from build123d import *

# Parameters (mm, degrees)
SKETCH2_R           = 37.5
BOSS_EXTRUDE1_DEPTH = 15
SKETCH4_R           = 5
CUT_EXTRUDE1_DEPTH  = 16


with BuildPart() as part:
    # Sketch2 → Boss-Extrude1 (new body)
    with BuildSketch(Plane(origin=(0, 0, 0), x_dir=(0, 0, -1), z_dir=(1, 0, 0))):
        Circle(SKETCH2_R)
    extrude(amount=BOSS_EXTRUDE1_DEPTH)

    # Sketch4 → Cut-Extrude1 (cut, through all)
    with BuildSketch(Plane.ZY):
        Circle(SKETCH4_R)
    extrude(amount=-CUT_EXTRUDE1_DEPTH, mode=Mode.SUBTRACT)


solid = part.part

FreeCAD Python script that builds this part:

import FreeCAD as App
import Part
import Sketcher

V = App.Vector

doc = App.newDocument("Part")
body = doc.addObject("PartDesign::Body", "Body")

# Sketch on YZ plane
sketch1 = doc.addObject("Sketcher::SketchObject", "Sketch")
body.addObject(sketch1)
sketch1.AttachmentSupport = (doc.YZ_Plane, [""])
sketch1.MapMode = "FlatFace"
sketch1.addGeometry(Part.Circle(V(0, 0, 0), V(0, 0, 1), 38), False)
sketch1.addConstraint(Sketcher.Constraint("Coincident", 0, 3, -1, 1))
sketch1.addConstraint(Sketcher.Constraint("Diameter", 0, 75.0))
pad1 = doc.addObject("PartDesign::Pad", "Pad")
body.addObject(pad1)
pad1.Profile = sketch1
pad1.Length = 15

# Sketch on YZ plane
sketch2 = doc.addObject("Sketcher::SketchObject", "Sketch001")
body.addObject(sketch2)
sketch2.AttachmentSupport = (doc.YZ_Plane, [""])
sketch2.MapMode = "FlatFace"
sketch2.addGeometry(Part.Circle(V(0, 0, 0), V(0, 0, 1), 5), False)
sketch2.addConstraint(Sketcher.Constraint("Coincident", 0, 3, -1, 1))
sketch2.addConstraint(Sketcher.Constraint("Diameter", 0, 10.0))
pocket1 = doc.addObject("PartDesign::Pocket", "Pocket")
body.addObject(pocket1)
pocket1.Profile = sketch2
pocket1.Type = "ThroughAll"
pocket1.Reversed = True

doc.recompute()
